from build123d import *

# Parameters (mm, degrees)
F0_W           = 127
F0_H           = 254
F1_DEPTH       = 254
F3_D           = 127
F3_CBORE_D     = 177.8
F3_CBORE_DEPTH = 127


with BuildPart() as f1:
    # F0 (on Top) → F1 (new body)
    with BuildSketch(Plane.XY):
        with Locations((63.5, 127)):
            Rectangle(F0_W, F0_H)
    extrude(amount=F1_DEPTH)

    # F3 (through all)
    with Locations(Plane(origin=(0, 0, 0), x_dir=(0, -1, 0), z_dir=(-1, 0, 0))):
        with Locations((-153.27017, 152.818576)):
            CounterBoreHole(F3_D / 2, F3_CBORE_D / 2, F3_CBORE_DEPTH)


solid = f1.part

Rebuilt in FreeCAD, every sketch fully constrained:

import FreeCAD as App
import Part
import Sketcher
Q = App.Units.Quantity


def add_polygon(sketch, points):
    """Adds a closed chain of lines whose ends are joined by coincident constraints."""
    first, n = sketch.GeometryCount, len(points)
    for a, b in zip(points, points[1:] + points[:1]):
        sketch.addGeometry(Part.LineSegment(App.Vector(*a, 0), App.Vector(*b, 0)), False)
    for i in range(n):
        sketch.addConstraint(Sketcher.Constraint("Coincident", first + i, 2, first + (i + 1) % n, 1))

doc = App.newDocument("Part")
body = doc.addObject("PartDesign::Body", "Body")

sketch1 = doc.addObject("Sketcher::SketchObject", "Sketch")
body.addObject(sketch1)
sketch1.AttachmentSupport = (doc.XY_Plane, [""])
sketch1.MapMode = "FlatFace"
add_polygon(sketch1, [(0, 254), (0, 0), (127, 0), (127, 254)])
sketch1.addConstraint([
    Sketcher.Constraint("Vertical", 0),
    Sketcher.Constraint("Horizontal", 1),
    Sketcher.Constraint("Vertical", 2),
    Sketcher.Constraint("Horizontal", 3),
    Sketcher.Constraint("Coincident", 0, 2, -1, 1),
    Sketcher.Constraint("DistanceX", 1, 1, 1, 2, Q("5 in")),
    Sketcher.Constraint("DistanceY", 0, 2, 0, 1, Q("10 in")),
])
pad1 = doc.addObject("PartDesign::Pad", "Pad")
body.addObject(pad1)
pad1.Profile = sketch1
pad1.Length = Q("10 in")

sketch2 = doc.addObject("Sketcher::SketchObject", "Sketch001")
body.addObject(sketch2)
sketch2.AttachmentSupport = (doc.YZ_Plane, [""])
sketch2.MapMode = "FlatFace"
sketch2.addGeometry(Part.Circle(App.Vector(153, 153, 0), App.Vector(0, 0, 1), 64), False)
sketch2.addConstraint([
    Sketcher.Constraint("Diameter", 0, Q("5 in")),
    Sketcher.Constraint("DistanceX", -1, 1, 0, 3, 153.27017),
    Sketcher.Constraint("DistanceY", -1, 1, 0, 3, 152.818576),
])
doc.recompute()
hole = doc.addObject("PartDesign::Hole", "Hole")
body.addObject(hole)
hole.Profile = sketch2
hole.ThreadType = "None"
hole.Diameter = Q("5 in")
hole.DepthType = "ThroughAll"
hole.HoleCutType = "Counterbore"
hole.HoleCutDiameter = Q("7 in")
hole.HoleCutDepth = Q("5 in")
hole.Reversed = True

doc.recompute()
